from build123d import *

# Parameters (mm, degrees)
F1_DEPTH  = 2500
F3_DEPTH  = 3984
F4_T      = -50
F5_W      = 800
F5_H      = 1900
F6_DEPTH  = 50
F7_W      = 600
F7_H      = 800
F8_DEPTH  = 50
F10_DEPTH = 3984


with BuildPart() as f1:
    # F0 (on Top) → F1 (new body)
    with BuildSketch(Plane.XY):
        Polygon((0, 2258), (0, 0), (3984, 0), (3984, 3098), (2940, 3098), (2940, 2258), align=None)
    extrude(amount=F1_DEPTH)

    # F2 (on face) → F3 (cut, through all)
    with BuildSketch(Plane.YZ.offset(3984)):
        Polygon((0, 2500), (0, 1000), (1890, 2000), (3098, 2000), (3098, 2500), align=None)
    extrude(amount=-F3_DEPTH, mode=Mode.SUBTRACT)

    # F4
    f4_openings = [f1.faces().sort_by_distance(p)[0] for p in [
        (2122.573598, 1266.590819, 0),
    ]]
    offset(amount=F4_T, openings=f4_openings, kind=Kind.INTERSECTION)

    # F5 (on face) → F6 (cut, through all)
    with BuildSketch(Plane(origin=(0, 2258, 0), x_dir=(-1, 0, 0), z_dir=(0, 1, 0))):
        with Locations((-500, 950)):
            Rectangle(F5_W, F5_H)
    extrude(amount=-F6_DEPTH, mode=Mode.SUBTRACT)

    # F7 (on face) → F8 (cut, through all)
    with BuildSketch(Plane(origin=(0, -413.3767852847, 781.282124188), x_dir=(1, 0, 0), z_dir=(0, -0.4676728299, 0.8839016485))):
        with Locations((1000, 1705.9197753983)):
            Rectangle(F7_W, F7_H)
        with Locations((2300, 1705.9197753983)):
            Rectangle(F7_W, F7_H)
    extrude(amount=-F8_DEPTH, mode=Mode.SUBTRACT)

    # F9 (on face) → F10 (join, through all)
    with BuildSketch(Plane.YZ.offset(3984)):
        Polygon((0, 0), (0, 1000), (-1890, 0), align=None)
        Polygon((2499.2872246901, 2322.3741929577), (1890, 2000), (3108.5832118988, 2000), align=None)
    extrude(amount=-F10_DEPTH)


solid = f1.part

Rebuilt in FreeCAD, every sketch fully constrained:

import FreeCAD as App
import Part
import Sketcher


def faces_at(feature, points):
    """Names of the faces that lie closest to the given points."""
    faces = feature.Shape.Faces
    near = lambda p: min(range(len(faces)), key=lambda i: faces[i].distToShape(Part.Vertex(*p))[0])
    return sorted({f"Face{near(p) + 1}" for p in points})

doc = App.newDocument("Part")
body = doc.addObject("PartDesign::Body", "Body")

# Sketch on XY plane
sketch1 = doc.addObject("Sketcher::SketchObject", "Sketch")
body.addObject(sketch1)
sketch1.AttachmentSupport = (doc.XY_Plane, [""])
sketch1.MapMode = "FlatFace"
sketch1.addGeometry([
    Part.LineSegment(App.Vector(0, 2258, 0), App.Vector(0, 0, 0)),  # 0
    Part.LineSegment(App.Vector(0, 0, 0), App.Vector(3984, 0, 0)),  # 1
    Part.LineSegment(App.Vector(3984, 0, 0), App.Vector(3984, 3098, 0)),  # 2
    Part.LineSegment(App.Vector(3984, 3098, 0), App.Vector(2940, 3098, 0)),  # 3
    Part.LineSegment(App.Vector(2940, 3098, 0), App.Vector(2940, 2258, 0)),  # 4
    Part.LineSegment(App.Vector(2940, 2258, 0), App.Vector(0, 2258, 0)),  # 5
], False)
sketch1.addConstraint([
    Sketcher.Constraint("Coincident", 0, 2, 1, 1),
    Sketcher.Constraint("Coincident", 1, 2, 2, 1),
    Sketcher.Constraint("Coincident", 2, 2, 3, 1),
    Sketcher.Constraint("Coincident", 3, 2, 4, 1),
    Sketcher.Constraint("Coincident", 4, 2, 5, 1),
    Sketcher.Constraint("Coincident", 5, 2, 0, 1),
    Sketcher.Constraint("Vertical", 0),
    Sketcher.Constraint("Horizontal", 1),
    Sketcher.Constraint("Vertical", 2),
    Sketcher.Constraint("Horizontal", 3),
    Sketcher.Constraint("Vertical", 4),
    Sketcher.Constraint("Horizontal", 5),
    Sketcher.Constraint("Coincident", 0, 2, -1, 1),
    Sketcher.Constraint("DistanceX", 1, 1, 1, 2, 3984.0),
    Sketcher.Constraint("DistanceX", 3, 2, 3, 1, 1044.0),
    Sketcher.Constraint("DistanceY", 0, 2, 0, 1, 2258.0),
    Sketcher.Constraint("DistanceY", 2, 1, 2, 2, 3098.0),
])
pad1 = doc.addObject("PartDesign::Pad", "Pad")
body.addObject(pad1)
pad1.Profile = sketch1
pad1.Length = 2500

# Sketch on YZ plane
sketch2 = doc.addObject("Sketcher::SketchObject", "Sketch001")
body.addObject(sketch2)
sketch2.AttachmentSupport = (doc.YZ_Plane, [""])
sketch2.MapMode = "FlatFace"
sketch2.AttachmentOffset = App.Placement(App.Vector(0, 0, 3984), App.Rotation())
sketch2.addGeometry([
    Part.LineSegment(App.Vector(0, 2500, 0), App.Vector(0, 1000, 0)),  # 0
    Part.LineSegment(App.Vector(0, 1000, 0), App.Vector(1890, 2000, 0)),  # 1
    Part.LineSegment(App.Vector(1890, 2000, 0), App.Vector(3098, 2000, 0)),  # 2
    Part.LineSegment(App.Vector(3098, 2000, 0), App.Vector(3098, 2500, 0)),  # 3
    Part.LineSegment(App.Vector(3098, 2500, 0), App.Vector(0, 2500, 0)),  # 4
], False)
sketch2.addConstraint([
    Sketcher.Constraint("Coincident", 0, 2, 1, 1),
    Sketcher.Constraint("Coincident", 1, 2, 2, 1),
    Sketcher.Constraint("Coincident", 2, 2, 3, 1),
    Sketcher.Constraint("Coincident", 3, 2, 4, 1),
    Sketcher.Constraint("Coincident", 4, 2, 0, 1),
    Sketcher.Constraint("Vertical", 0),
    Sketcher.Constraint("Horizontal", 2),
    Sketcher.Constraint("Vertical", 3),
    Sketcher.Constraint("Horizontal", 4),
    Sketcher.Constraint("PointOnObject", 0, 2, -2),
    Sketcher.Constraint("DistanceX", 2, 1, 2, 2, 1208.0),
    Sketcher.Constraint("DistanceX", 4, 2, 4, 1, 3098.0),
    Sketcher.Constraint("DistanceY", 0, 2, 0, 1, 1500.0),
    Sketcher.Constraint("DistanceY", 3, 1, 3, 2, 500.0),
    Sketcher.Constraint("DistanceY", -1, 1, 0, 2, 1000.0),
])
pocket1 = doc.addObject("PartDesign::Pocket", "Pocket")
body.addObject(pocket1)
pocket1.Profile = sketch2
pocket1.Type = "ThroughAll"
doc.recompute()

thickness = doc.addObject("PartDesign::Thickness", "Thickness")
body.addObject(thickness)
thickness.Base = (pocket1, faces_at(pocket1, [(1992, 1549, 0)]))
thickness.Value = 50
thickness.Reversed = True
thickness.Join = "Intersection"

# Sketch on XZ plane
sketch3 = doc.addObject("Sketcher::SketchObject", "Sketch002")
body.addObject(sketch3)
sketch3.AttachmentSupport = (doc.XZ_Plane, [""])
sketch3.MapMode = "FlatFace"
sketch3.AttachmentOffset = App.Placement(App.Vector(0, 0, -2258), App.Rotation())
sketch3.addGeometry([
    Part.LineSegment(App.Vector(900, 1900, 0), App.Vector(900, 0, 0)),
    Part.LineSegment(App.Vector(900, 0, 0), App.Vector(100, 0, 0)),
    Part.LineSegment(App.Vector(100, 0, 0), App.Vector(100, 1900, 0)),
    Part.LineSegment(App.Vector(100, 1900, 0), App.Vector(900, 1900, 0)),
], False)
sketch3.addConstraint([
    Sketcher.Constraint("Coincident", 0, 2, 1, 1),
    Sketcher.Constraint("Coincident", 1, 2, 2, 1),
    Sketcher.Constraint("Coincident", 2, 2, 3, 1),
    Sketcher.Constraint("Coincident", 3, 2, 0, 1),
    Sketcher.Constraint("Vertical", 0),
    Sketcher.Constraint("Horizontal", 1),
    Sketcher.Constraint("Vertical", 2),
    Sketcher.Constraint("Horizontal", 3),
    Sketcher.Constraint("PointOnObject", 0, 2, -1),
    Sketcher.Constraint("DistanceX", 1, 2, 1, 1, 800.0),
    Sketcher.Constraint("DistanceY", 0, 2, 0, 1, 1900.0),
    Sketcher.Constraint("DistanceX", -1, 1, 0, 2, 900.0),
])
pocket2 = doc.addObject("PartDesign::Pocket", "Pocket001")
body.addObject(pocket2)
pocket2.Profile = sketch3
pocket2.Length = 50
pocket2.Reversed = True

# Sketch on an angled plane
sketch4 = doc.addObject("Sketcher::SketchObject", "Sketch003")
body.addObject(sketch4)
sketch4.Placement = App.Placement(App.Vector(0, -413.376785, 781.282124), App.Rotation(App.Vector(1, 0, 0), App.Vector(0, 0.883901648, 0.46767283), App.Vector(0, -0.46767283, 0.883901648), "ZXY"))
sketch4.addGeometry([
    Part.LineSegment(App.Vector(700, 2105.919774, 0), App.Vector(700, 1305.919774, 0)),  # 0
    Part.LineSegment(App.Vector(700, 1305.919774, 0), App.Vector(1300, 1305.919774, 0)),  # 1
    Part.LineSegment(App.Vector(1300, 1305.919774, 0), App.Vector(1300, 2105.919774, 0)),  # 2
    Part.LineSegment(App.Vector(1300, 2105.919774, 0), App.Vector(700, 2105.919774, 0)),  # 3
    Part.LineSegment(App.Vector(2000, 2105.919774, 0), App.Vector(2000, 1305.919774, 0)),  # 4
    Part.LineSegment(App.Vector(2000, 1305.919774, 0), App.Vector(2600, 1305.919774, 0)),  # 5
    Part.LineSegment(App.Vector(2600, 1305.919774, 0), App.Vector(2600, 2105.919774, 0)),  # 6
    Part.LineSegment(App.Vector(2600, 2105.919774, 0), App.Vector(2000, 2105.919774, 0)),  # 7
], False)
sketch4.addConstraint([
    Sketcher.Constraint("Coincident", 0, 2, 1, 1),
    Sketcher.Constraint("Coincident", 1, 2, 2, 1),
    Sketcher.Constraint("Coincident", 2, 2, 3, 1),
    Sketcher.Constraint("Coincident", 3, 2, 0, 1),
    Sketcher.Constraint("Coincident", 4, 2, 5, 1),
    Sketcher.Constraint("Coincident", 5, 2, 6, 1),
    Sketcher.Constraint("Coincident", 6, 2, 7, 1),
    Sketcher.Constraint("Coincident", 7, 2, 4, 1),
    Sketcher.Constraint("Vertical", 0),
    Sketcher.Constraint("Horizontal", 1),
    Sketcher.Constraint("Vertical", 2),
    Sketcher.Constraint("Horizontal", 3),
    Sketcher.Constraint("Vertical", 4),
    Sketcher.Constraint("Horizontal", 5),
    Sketcher.Constraint("Vertical", 6),
    Sketcher.Constraint("Horizontal", 7),
    Sketcher.Constraint("Horizontal", 1, 2, 4, 2),
    Sketcher.Constraint("Horizontal", 3, 2, 6, 2),
    Sketcher.Constraint("Equal", 3, 5),
    Sketcher.Constraint("DistanceX", 1, 1, 1, 2, 600.0),
    Sketcher.Constraint("DistanceY", 0, 2, 0, 1, 799.999999),
    Sketcher.Constraint("DistanceX", -1, 1, 0, 2, 700.0),
    Sketcher.Constraint("DistanceX", -1, 1, 4, 2, 2000.0),
    Sketcher.Constraint("DistanceY", -1, 1, 0, 2, 1305.919774),
])
pocket3 = doc.addObject("PartDesign::Pocket", "Pocket002")
body.addObject(pocket3)
pocket3.Profile = sketch4
pocket3.Length = 50

# Sketch on YZ plane
sketch5 = doc.addObject("Sketcher::SketchObject", "Sketch004")
body.addObject(sketch5)
sketch5.AttachmentSupport = (doc.YZ_Plane, [""])
sketch5.MapMode = "FlatFace"
sketch5.AttachmentOffset = App.Placement(App.Vector(0, 0, 3984), App.Rotation())
sketch5.addGeometry([
    Part.LineSegment(App.Vector(0, 0, 0), App.Vector(0, 1000, 0)),  # 0
    Part.LineSegment(App.Vector(0, 1000, 0), App.Vector(-1890, 0, 0)),  # 1
    Part.LineSegment(App.Vector(-1890, 0, 0), App.Vector(0, 0, 0)),  # 2
    Part.LineSegment(App.Vector(2499.287225, 2322.374193, 0), App.Vector(1890, 2000, 0)),  # 3
    Part.LineSegment(App.Vector(1890, 2000, 0), App.Vector(3108.583212, 2000, 0)),  # 4
    Part.LineSegment(App.Vector(3108.583212, 2000, 0), App.Vector(2499.287225, 2322.374193, 0)),  # 5
], False)
sketch5.addConstraint([
    Sketcher.Constraint("Coincident", 0, 2, 1, 1),
    Sketcher.Constraint("Coincident", 1, 2, 2, 1),
    Sketcher.Constraint("Coincident", 2, 2, 0, 1),
    Sketcher.Constraint("Coincident", 3, 2, 4, 1),
    Sketcher.Constraint("Coincident", 4, 2, 5, 1),
    Sketcher.Constraint("Coincident", 5, 2, 3, 1),
    Sketcher.Constraint("Vertical", 0),
    Sketcher.Constraint("Horizontal", 2),
    Sketcher.Constraint("Horizontal", 4),
    Sketcher.Constraint("Coincident", 2, 2, -1, 1),
    Sketcher.Constraint("Parallel", 1, 3),
    Sketcher.Constraint("DistanceX", 2, 1, 2, 2, 1890.0),
    Sketcher.Constraint("DistanceY", 0, 1, 0, 2, 1000.0),
    Sketcher.Constraint("DistanceX", -1, 1, 3, 2, 1890.0),
    Sketcher.Constraint("DistanceY", -1, 1, 3, 2, 2000.0),
    Sketcher.Constraint("DistanceX", 4, 1, 4, 2, 1218.583212),
    Sketcher.Constraint("Distance", 5, 689.323379),
])
pad2 = doc.addObject("PartDesign::Pad", "Pad001")
body.addObject(pad2)
pad2.Profile = sketch5
pad2.Length = 3984
pad2.Reversed = True

doc.recompute()
